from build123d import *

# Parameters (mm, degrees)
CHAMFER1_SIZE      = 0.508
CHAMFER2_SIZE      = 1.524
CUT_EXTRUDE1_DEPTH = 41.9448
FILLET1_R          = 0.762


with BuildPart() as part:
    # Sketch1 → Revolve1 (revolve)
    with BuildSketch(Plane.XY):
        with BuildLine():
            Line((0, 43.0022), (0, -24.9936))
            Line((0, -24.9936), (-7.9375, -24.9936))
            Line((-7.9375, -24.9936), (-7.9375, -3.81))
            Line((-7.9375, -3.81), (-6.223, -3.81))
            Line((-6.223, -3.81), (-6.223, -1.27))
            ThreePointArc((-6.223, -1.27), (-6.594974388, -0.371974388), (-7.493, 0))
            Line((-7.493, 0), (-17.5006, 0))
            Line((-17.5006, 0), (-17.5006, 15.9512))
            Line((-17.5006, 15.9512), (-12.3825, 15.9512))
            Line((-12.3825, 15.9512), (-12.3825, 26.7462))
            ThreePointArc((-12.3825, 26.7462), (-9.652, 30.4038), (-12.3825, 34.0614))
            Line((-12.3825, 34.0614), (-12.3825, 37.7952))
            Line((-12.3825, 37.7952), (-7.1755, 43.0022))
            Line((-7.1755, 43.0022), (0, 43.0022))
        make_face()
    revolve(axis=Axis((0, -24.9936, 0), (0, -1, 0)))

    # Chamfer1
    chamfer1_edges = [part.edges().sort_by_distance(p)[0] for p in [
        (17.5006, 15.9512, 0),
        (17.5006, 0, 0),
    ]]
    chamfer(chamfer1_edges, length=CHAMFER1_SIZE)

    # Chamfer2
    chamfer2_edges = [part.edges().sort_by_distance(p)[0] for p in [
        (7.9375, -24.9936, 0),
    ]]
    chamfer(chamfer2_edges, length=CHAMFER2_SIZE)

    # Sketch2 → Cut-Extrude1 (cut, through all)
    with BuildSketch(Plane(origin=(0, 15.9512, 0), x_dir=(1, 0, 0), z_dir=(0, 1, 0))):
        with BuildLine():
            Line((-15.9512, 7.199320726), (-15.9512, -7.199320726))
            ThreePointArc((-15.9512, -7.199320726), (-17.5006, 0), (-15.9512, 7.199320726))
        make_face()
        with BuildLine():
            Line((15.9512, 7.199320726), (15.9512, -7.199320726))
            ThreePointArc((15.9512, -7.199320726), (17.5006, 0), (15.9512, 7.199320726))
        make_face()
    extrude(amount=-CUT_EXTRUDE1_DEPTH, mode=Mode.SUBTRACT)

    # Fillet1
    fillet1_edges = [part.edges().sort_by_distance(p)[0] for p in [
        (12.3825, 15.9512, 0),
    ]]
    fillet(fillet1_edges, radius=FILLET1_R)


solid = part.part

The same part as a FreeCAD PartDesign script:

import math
import FreeCAD as App
import Part
import Sketcher
Q = App.Units.Quantity


def edges_at(feature, points):
    """Names of the edges that pass closest to the given points."""
    edges = feature.Shape.Edges
    near = lambda p: min(range(len(edges)), key=lambda i: edges[i].distToShape(Part.Vertex(*p))[0])
    return sorted({f"Edge{near(p) + 1}" for p in points})

doc = App.newDocument("Part")
params = doc.addObject("Spreadsheet::Sheet", "Params")
for row, (alias, value) in enumerate([
    ("sketch1_radius", "0.05 in"),
    ("sketch1_height", "0.1 in"),
    ("sketch1_width", "0.394 in"),
    ("sketch1_width2", "0.3125 in"),
    ("sketch1_height2", "2.677 in"),
    ("revolution_angle", "360 deg"),
    ("chamfer_size", "0.02 in"),
    ("chamfer2_size", "0.06 in"),
    ("sketch2_radius", "0.689 in"),
    ("fillet_radius", "0.03 in"),
], start=1):
    params.set(f"A{row}", alias)
    params.set(f"B{row}", "=" + value)
    params.setAlias(f"B{row}", alias)

body = doc.addObject("PartDesign::Body", "Body")

# Sketch on XY plane
sketch1 = body.newObject("Sketcher::SketchObject", "Sketch")
sketch1.AttachmentSupport = (doc.getObject("XY_Plane"), [""])
sketch1.MapMode = "FlatFace"
sketch1.addGeometry([
    Part.LineSegment(App.Vector(0, -25, 0), App.Vector(0, 43, 0)),  # 0
    Part.LineSegment(App.Vector(0, 43, 0), App.Vector(-7.2, 43, 0)),  # 1
    Part.LineSegment(App.Vector(-7.2, 43, 0), App.Vector(-12.4, 37.8, 0)),  # 2
    Part.LineSegment(App.Vector(-12.4, 37.8, 0), App.Vector(-12.4, 34.1, 0)),  # 3
    Part.ArcOfCircle(Part.Circle(App.Vector(-13.5, 30.4, 0), App.Vector(0, 0, 1), 3.8), math.radians(-73), math.radians(73)),  # 4
    Part.LineSegment(App.Vector(-12.4, 26.7, 0), App.Vector(-12.4, 16, 0)),  # 5
    Part.LineSegment(App.Vector(-12.4, 16, 0), App.Vector(-17.5, 16, 0)),  # 6
    Part.LineSegment(App.Vector(-17.5, 16, 0), App.Vector(-17.5, 0, 0)),  # 7
    Part.LineSegment(App.Vector(-17.5, 0, 0), App.Vector(-7.5, 0, 0)),  # 8
    Part.ArcOfCircle(Part.Circle(App.Vector(-7.5, -1.3, 0), App.Vector(0, 0, 1), 1.3), math.radians(0), math.radians(90)),  # 9
    Part.LineSegment(App.Vector(-6.2, -1.3, 0), App.Vector(-6.2, -3.8, 0)),  # 10
    Part.LineSegment(App.Vector(-6.2, -3.8, 0), App.Vector(-7.9, -3.8, 0)),  # 11
    Part.LineSegment(App.Vector(-7.9, -3.8, 0), App.Vector(-7.9, -25, 0)),  # 12
    Part.LineSegment(App.Vector(-7.9, -25, 0), App.Vector(0, -25, 0)),  # 13
], False)
sketch1.addConstraint([
    Sketcher.Constraint("Coincident", 0, 2, 1, 1),
    Sketcher.Constraint("Coincident", 1, 2, 2, 1),
    Sketcher.Constraint("Coincident", 2, 2, 3, 1),
    Sketcher.Constraint("Coincident", 3, 2, 4, 2),
    Sketcher.Constraint("Coincident", 4, 1, 5, 1),
    Sketcher.Constraint("Coincident", 5, 2, 6, 1),
    Sketcher.Constraint("Coincident", 6, 2, 7, 1),
    Sketcher.Constraint("Coincident", 7, 2, 8, 1),
    Sketcher.Constraint("Tangent", 8, 2, 9, 2),
    Sketcher.Constraint("Tangent", 9, 1, 10, 1),
    Sketcher.Constraint("Coincident", 10, 2, 11, 1),
    Sketcher.Constraint("Coincident", 11, 2, 12, 1),
    Sketcher.Constraint("Coincident", 12, 2, 13, 1),
    Sketcher.Constraint("Coincident", 13, 2, 0, 1),
    Sketcher.Constraint("Vertical", 0),
    Sketcher.Constraint("Horizontal", 1),
    Sketcher.Constraint("Vertical", 3),
    Sketcher.Constraint("Vertical", 5),
    Sketcher.Constraint("Horizontal", 6),
    Sketcher.Constraint("Vertical", 7),
    Sketcher.Constraint("Horizontal", 8),
    Sketcher.Constraint("Vertical", 10),
    Sketcher.Constraint("Horizontal", 11),
    Sketcher.Constraint("Vertical", 12),
    Sketcher.Constraint("Horizontal", 13),
    Sketcher.Constraint("PointOnObject", 0, 2, -2),
    Sketcher.Constraint("PointOnObject", 7, 2, -1),
    Sketcher.Constraint("Vertical", 3, 2, 4, 1),
    Sketcher.Constraint("Radius", 9, Q("0.05 in")),
    Sketcher.Constraint("DistanceY", 10, 2, 10, 1, Q("0.1 in")),
    Sketcher.Constraint("Angle", 2, Q("-135 deg")),
    Sketcher.Constraint("DistanceX", 8, 1, 8, 2, Q("0.394 in")),
    Sketcher.Constraint("DistanceX", 13, 1, 13, 2, Q("0.3125 in")),
    Sketcher.Constraint("DistanceY", 0, 1, 0, 2, Q("2.677 in")),
    Sketcher.Constraint("DistanceY", 3, 2, 3, 1, Q("0.147 in")),
    Sketcher.Constraint("DistanceY", 5, 2, 5, 1, Q("0.425 in")),
    Sketcher.Constraint("DistanceY", 7, 2, 7, 1, Q("0.628 in")),
    Sketcher.Constraint("DistanceY", 12, 2, 12, 1, Q("0.834 in")),
    Sketcher.Constraint("DistanceY", 5, 2, 2, 2, Q("0.86 in")),
    Sketcher.Constraint("DistanceX", 1, 2, 1, 1, Q("0.2825 in")),
    Sketcher.Constraint("DistanceX", 6, 2, 6, 1, Q("0.2015 in")),
    Sketcher.Constraint("Radius", 4, Q("3.814991 mm")),
])
sketch1.setExpression("Constraints[28]", "Params.sketch1_radius")
sketch1.setExpression("Constraints[29]", "Params.sketch1_height")
sketch1.setExpression("Constraints[31]", "Params.sketch1_width")
sketch1.setExpression("Constraints[32]", "Params.sketch1_width2")
sketch1.setExpression("Constraints[33]", "Params.sketch1_height2")
revolution = body.newObject("PartDesign::Revolution", "Revolution")
revolution.Profile = sketch1
revolution.ReferenceAxis = (sketch1, ["V_Axis"])
revolution.setExpression("Angle", "Params.revolution_angle")
doc.recompute()

chamfer = body.newObject("PartDesign::Chamfer", "Chamfer")
chamfer.Base = (revolution, edges_at(revolution, [(17.501, 15.951, 0), (17.501, 0, 0)]))
chamfer.setExpression("Size", "Params.chamfer_size")
doc.recompute()

chamfer2 = body.newObject("PartDesign::Chamfer", "Chamfer001")
chamfer2.Base = (chamfer, edges_at(chamfer, [(7.938, -24.994, 0)]))
chamfer2.setExpression("Size", "Params.chamfer2_size")

# Sketch on XZ plane
sketch2 = body.newObject("Sketcher::SketchObject", "Sketch001")
sketch2.AttachmentSupport = (doc.getObject("XZ_Plane"), [""])
sketch2.MapMode = "FlatFace"
sketch2.AttachmentOffset = App.Placement(App.Vector(0, 0, -0.628 * 25.4), App.Rotation())
sketch2.addGeometry([
    Part.LineSegment(App.Vector(-16, 7, 0), App.Vector(-16, -7, 0)),
    Part.ArcOfCircle(Part.Circle(App.Vector(0, 0, 0), App.Vector(0, 0, 1), 18), math.radians(156), math.radians(204)),
    Part.LineSegment(App.Vector(16, -7, 0), App.Vector(16, 7, 0)),
    Part.ArcOfCircle(Part.Circle(App.Vector(0, 0, 0), App.Vector(0, 0, 1), 18), math.radians(-24), math.radians(24)),
], False)
sketch2.addConstraint([
    Sketcher.Constraint("Coincident", 0, 1, 1, 1),
    Sketcher.Constraint("Coincident", 1, 2, 0, 2),
    Sketcher.Constraint("Coincident", 2, 1, 3, 1),
    Sketcher.Constraint("Coincident", 3, 2, 2, 2),
    Sketcher.Constraint("Vertical", 0),
    Sketcher.Constraint("Vertical", 2),
    Sketcher.Constraint("Coincident", 1, 3, -1, 1),
    Sketcher.Constraint("Coincident", 3, 3, -1, 1),
    Sketcher.Constraint("Equal", 1, 3),
    Sketcher.Constraint("Horizontal", 1, 2, 2, 1),
    Sketcher.Constraint("Radius", 1, Q("0.689 in")),
    Sketcher.Constraint("DistanceX", 0, 1, -1, 1, Q("0.628 in")),
])
sketch2.setExpression("Constraints[10]", "Params.sketch2_radius")
pocket1 = body.newObject("PartDesign::Pocket", "Pocket")
pocket1.Profile = sketch2
pocket1.Type = "ThroughAll"
pocket1.Reversed = True
doc.recompute()

fillet = body.newObject("PartDesign::Fillet", "Fillet")
fillet.Base = (pocket1, edges_at(pocket1, [(12.383, 15.951, 0)]))
fillet.setExpression("Radius", "Params.fillet_radius")

doc.recompute()
